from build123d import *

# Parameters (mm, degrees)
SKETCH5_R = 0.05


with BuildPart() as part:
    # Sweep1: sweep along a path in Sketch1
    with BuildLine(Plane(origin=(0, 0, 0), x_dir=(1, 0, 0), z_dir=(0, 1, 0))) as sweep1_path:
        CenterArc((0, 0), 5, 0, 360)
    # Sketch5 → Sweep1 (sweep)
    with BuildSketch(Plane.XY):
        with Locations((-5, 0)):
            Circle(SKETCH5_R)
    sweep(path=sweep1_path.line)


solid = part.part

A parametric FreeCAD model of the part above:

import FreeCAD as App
import Part
import Sketcher
from FreeCAD import Vector
Q = App.Units.Quantity

doc = App.newDocument("Part")
params = doc.addObject("Spreadsheet::Sheet", "Params")
for row, (alias, value) in enumerate([
    ("sketch1_diameter", "0.1 mm"),
    ("sketch2_diameter", "10 mm"),
], start=1):
    params.set(f"A{row}", alias)
    params.set(f"B{row}", "=" + value)
    params.setAlias(f"B{row}", alias)

body = doc.addObject("PartDesign::Body", "Body")

# Sketch on XY plane
sketch1 = body.newObject("Sketcher::SketchObject", "Sketch")
sketch1.AttachmentSupport = (doc.getObject("XY_Plane"), [""])
sketch1.MapMode = "FlatFace"
sketch1.addGeometry(Part.Circle(Vector(-5, 0, 0), Vector(0, 0, 1), 0.05), False)
sketch1.addConstraint([
    Sketcher.Constraint("PointOnObject", 0, 3, -1),
    Sketcher.Constraint("Diameter", 0, Q("0.1 mm")),
    Sketcher.Constraint("DistanceX", 0, 3, -1, 1, Q("5 mm")),
])
sketch1.setExpression("Constraints[1]", "Params.sketch1_diameter")

# Sketch on XZ plane
sketch2 = body.newObject("Sketcher::SketchObject", "Sketch001")
sketch2.AttachmentSupport = (doc.getObject("XZ_Plane"), [""])
sketch2.MapMode = "FlatFace"
sketch2.addGeometry(Part.Circle(Vector(0, 0, 0), Vector(0, 0, 1), 5), False)
sketch2.addConstraint([
    Sketcher.Constraint("Coincident", 0, 3, -1, 1),
    Sketcher.Constraint("Diameter", 0, Q("10 mm")),
])
sketch2.setExpression("Constraints[1]", "Params.sketch2_diameter")
doc.recompute()

additivepipe = body.newObject("PartDesign::AdditivePipe", "AdditivePipe")
additivepipe.Profile = sketch1
additivepipe.Spine = (sketch2, ["Edge1"])

doc.recompute()
